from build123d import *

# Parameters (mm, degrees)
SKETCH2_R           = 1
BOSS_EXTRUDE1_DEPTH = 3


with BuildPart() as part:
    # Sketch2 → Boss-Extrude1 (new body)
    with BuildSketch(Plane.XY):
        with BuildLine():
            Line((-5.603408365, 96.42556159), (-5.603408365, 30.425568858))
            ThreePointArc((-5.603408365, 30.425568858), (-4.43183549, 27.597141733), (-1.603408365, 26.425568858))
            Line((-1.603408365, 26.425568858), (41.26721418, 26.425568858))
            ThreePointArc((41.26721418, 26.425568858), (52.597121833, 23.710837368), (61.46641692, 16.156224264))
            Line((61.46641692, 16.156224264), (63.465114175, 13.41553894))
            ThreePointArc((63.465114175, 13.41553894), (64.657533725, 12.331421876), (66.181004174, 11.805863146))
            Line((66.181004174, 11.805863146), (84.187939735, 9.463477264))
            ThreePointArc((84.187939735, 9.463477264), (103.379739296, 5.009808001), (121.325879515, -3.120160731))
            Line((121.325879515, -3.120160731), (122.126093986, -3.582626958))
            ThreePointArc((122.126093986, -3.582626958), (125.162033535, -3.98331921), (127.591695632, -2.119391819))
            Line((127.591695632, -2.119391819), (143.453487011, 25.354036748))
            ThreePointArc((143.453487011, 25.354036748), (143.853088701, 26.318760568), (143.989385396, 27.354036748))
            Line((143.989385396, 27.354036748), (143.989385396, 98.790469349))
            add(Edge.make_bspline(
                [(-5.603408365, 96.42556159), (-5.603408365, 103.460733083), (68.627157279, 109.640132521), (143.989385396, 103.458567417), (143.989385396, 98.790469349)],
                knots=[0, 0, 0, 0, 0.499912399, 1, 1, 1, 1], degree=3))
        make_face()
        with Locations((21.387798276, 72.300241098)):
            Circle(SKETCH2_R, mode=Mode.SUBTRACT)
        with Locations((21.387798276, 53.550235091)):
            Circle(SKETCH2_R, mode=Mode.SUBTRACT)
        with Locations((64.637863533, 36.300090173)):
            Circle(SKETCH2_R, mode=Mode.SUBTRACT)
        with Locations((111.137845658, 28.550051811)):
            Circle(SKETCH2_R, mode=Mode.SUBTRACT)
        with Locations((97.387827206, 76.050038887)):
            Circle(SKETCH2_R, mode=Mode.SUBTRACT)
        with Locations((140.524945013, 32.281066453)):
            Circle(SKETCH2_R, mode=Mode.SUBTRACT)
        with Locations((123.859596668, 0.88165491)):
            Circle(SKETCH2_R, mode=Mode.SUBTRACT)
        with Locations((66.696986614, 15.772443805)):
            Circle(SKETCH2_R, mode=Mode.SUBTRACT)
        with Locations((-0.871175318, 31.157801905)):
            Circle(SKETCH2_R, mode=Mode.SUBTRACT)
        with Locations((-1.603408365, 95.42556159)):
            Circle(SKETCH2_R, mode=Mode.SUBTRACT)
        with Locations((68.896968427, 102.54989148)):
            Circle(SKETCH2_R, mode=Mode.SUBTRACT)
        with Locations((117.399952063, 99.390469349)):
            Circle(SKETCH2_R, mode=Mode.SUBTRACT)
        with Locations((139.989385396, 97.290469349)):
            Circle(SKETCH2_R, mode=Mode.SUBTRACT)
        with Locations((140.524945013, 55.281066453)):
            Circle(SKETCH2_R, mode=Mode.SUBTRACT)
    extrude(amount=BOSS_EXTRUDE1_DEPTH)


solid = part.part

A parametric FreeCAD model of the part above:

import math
import FreeCAD as App
import Part
import Sketcher

V = App.Vector

doc = App.newDocument("Part")
body = doc.addObject("PartDesign::Body", "Body")

# Sketch on XY plane
sketch1 = doc.addObject("Sketcher::SketchObject", "Sketch")
body.addObject(sketch1)
sketch1.AttachmentSupport = (doc.XY_Plane, [""])
sketch1.MapMode = "FlatFace"
sketch1.addGeometry(Part.LineSegment(V(-5.603408, 96.425562, 0), V(-5.603408, 30.425569, 0)), False)
sketch1.addGeometry(Part.ArcOfCircle(Part.Circle(V(-1.603408, 30.425569, 0), V(0, 0, 1), 4), math.radians(180), math.radians(270)), False)
sketch1.addGeometry(Part.LineSegment(V(-1.603408, 26.425569, 0), V(41.267214, 26.425569, 0)), False)
sketch1.addGeometry(Part.ArcOfCircle(Part.Circle(V(41.267214, 1.425569, 0), V(0, 0, 1), 25), math.radians(36.102117), math.radians(90)), False)
sketch1.addGeometry(Part.LineSegment(V(61.466417, 16.156224, 0), V(63.465114, 13.415539, 0)), False)
sketch1.addGeometry(Part.ArcOfCircle(Part.Circle(V(66.696987, 15.772444, 0), V(0, 0, 1), 4), math.radians(-143.897883), math.radians(-97.411556)), False)
sketch1.addGeometry(Part.LineSegment(V(66.181004, 11.805863, 0), V(84.18794, 9.463477, 0)), False)
sketch1.addGeometry(Part.ArcOfCircle(Part.Circle(V(71.288379, -89.701039, 0), V(0, 0, 1), 100), math.radians(59.975187), math.radians(82.588444)), False)
sketch1.addGeometry(Part.LineSegment(V(121.32588, -3.120161, 0), V(122.126094, -3.582627, 0)), False)
sketch1.addGeometry(Part.ArcOfCircle(Part.Circle(V(124.127594, -0.119392, 0), V(0, 0, 1), 4), math.radians(-120.024813), math.radians(-30)), False)
sketch1.addGeometry(Part.LineSegment(V(127.591696, -2.119392, 0), V(143.453487, 25.354037, 0)), False)
sketch1.addGeometry(Part.ArcOfCircle(Part.Circle(V(139.989385, 27.354037, 0), V(0, 0, 1), 4), math.radians(-30), math.radians(0)), False)
sketch1.addGeometry(Part.LineSegment(V(143.989385, 27.354037, 0), V(143.989385, 98.790469, 0)), False)
sketch1.addGeometry(Part.BSplineCurve([V(-5.603408, 96.425562, 0), V(-5.603408, 103.460733, 0), V(68.627157, 109.640133, 0), V(143.989385, 103.458567, 0), V(143.989385, 98.790469, 0)], [4, 1, 4], [0, 0.499912399, 1], False, 3, [1, 1, 1, 1, 1], False), False)
sketch1.addGeometry(Part.Circle(V(66.696987, 15.772444, 0), V(0, 0, 1), 1), False)
sketch1.addGeometry(Part.Circle(V(-0.871175, 31.157802, 0), V(0, 0, 1), 1), False)
sketch1.addGeometry(Part.Circle(V(64.637864, 36.30009, 0), V(0, 0, 1), 1), False)
sketch1.addGeometry(Part.Circle(V(123.859597, 0.881655, 0), V(0, 0, 1), 1), False)
sketch1.addGeometry(Part.Circle(V(111.137846, 28.550052, 0), V(0, 0, 1), 1), False)
sketch1.addGeometry(Part.Circle(V(140.524945, 32.281066, 0), V(0, 0, 1), 1), False)
sketch1.addGeometry(Part.Circle(V(21.387798, 53.550235, 0), V(0, 0, 1), 1), False)
sketch1.addGeometry(Part.Circle(V(21.387798, 72.300241, 0), V(0, 0, 1), 1), False)
sketch1.addGeometry(Part.Circle(V(-1.603408, 95.425562, 0), V(0, 0, 1), 1), False)
sketch1.addGeometry(Part.Circle(V(68.896968, 102.549891, 0), V(0, 0, 1), 1), False)
sketch1.addGeometry(Part.Circle(V(97.387827, 76.050039, 0), V(0, 0, 1), 1), False)
sketch1.addGeometry(Part.Circle(V(140.524945, 55.281066, 0), V(0, 0, 1), 1), False)
sketch1.addGeometry(Part.Circle(V(117.399952, 99.390469, 0), V(0, 0, 1), 1), False)
sketch1.addGeometry(Part.Circle(V(139.989385, 97.290469, 0), V(0, 0, 1), 1), False)
sketch1.addConstraint(Sketcher.Constraint("Block", 13))
sketch1.addConstraint(Sketcher.Constraint("Coincident", 0, 2, 1, 1))
sketch1.addConstraint(Sketcher.Constraint("Coincident", 1, 2, 2, 1))
sketch1.addConstraint(Sketcher.Constraint("Coincident", 2, 2, 3, 2))
sketch1.addConstraint(Sketcher.Constraint("Coincident", 3, 1, 4, 1))
sketch1.addConstraint(Sketcher.Constraint("Coincident", 4, 2, 5, 1))
sketch1.addConstraint(Sketcher.Constraint("Coincident", 5, 2, 6, 1))
sketch1.addConstraint(Sketcher.Constraint("Coincident", 6, 2, 7, 2))
sketch1.addConstraint(Sketcher.Constraint("Coincident", 7, 1, 8, 1))
sketch1.addConstraint(Sketcher.Constraint("Coincident", 8, 2, 9, 1))
sketch1.addConstraint(Sketcher.Constraint("Coincident", 9, 2, 10, 1))
sketch1.addConstraint(Sketcher.Constraint("Coincident", 10, 2, 11, 1))
sketch1.addConstraint(Sketcher.Constraint("Coincident", 11, 2, 12, 1))
sketch1.addConstraint(Sketcher.Constraint("Coincident", 12, 2, 13, 2))
sketch1.addConstraint(Sketcher.Constraint("Coincident", 13, 1, 0, 1))
sketch1.addConstraint(Sketcher.Constraint("Vertical", 0))
sketch1.addConstraint(Sketcher.Constraint("Horizontal", 2))
sketch1.addConstraint(Sketcher.Constraint("Vertical", 12))
sketch1.addConstraint(Sketcher.Constraint("Coincident", 14, 3, 5, 3))
sketch1.addConstraint(Sketcher.Constraint("Diameter", 14, 2.0))
sketch1.addConstraint(Sketcher.Constraint("Diameter", 15, 2.0))
sketch1.addConstraint(Sketcher.Constraint("Diameter", 16, 2.0))
sketch1.addConstraint(Sketcher.Constraint("Diameter", 17, 2.0))
sketch1.addConstraint(Sketcher.Constraint("Diameter", 18, 2.0))
sketch1.addConstraint(Sketcher.Constraint("Diameter", 19, 2.0))
sketch1.addConstraint(Sketcher.Constraint("Diameter", 20, 2.0))
sketch1.addConstraint(Sketcher.Constraint("Diameter", 21, 2.0))
sketch1.addConstraint(Sketcher.Constraint("Diameter", 22, 2.0))
sketch1.addConstraint(Sketcher.Constraint("Diameter", 23, 2.0))
sketch1.addConstraint(Sketcher.Constraint("Diameter", 24, 2.0))
sketch1.addConstraint(Sketcher.Constraint("Diameter", 25, 2.0))
sketch1.addConstraint(Sketcher.Constraint("Diameter", 26, 2.0))
sketch1.addConstraint(Sketcher.Constraint("Diameter", 27, 2.0))
sketch1.addConstraint(Sketcher.Constraint("Radius", 1, 4.0))
sketch1.addConstraint(Sketcher.Constraint("Radius", 3, 25.0))
sketch1.addConstraint(Sketcher.Constraint("Radius", 5, 4.0))
sketch1.addConstraint(Sketcher.Constraint("Radius", 7, 100.0))
sketch1.addConstraint(Sketcher.Constraint("Radius", 9, 4.0))
sketch1.addConstraint(Sketcher.Constraint("Radius", 11, 4.0))
sketch1.addConstraint(Sketcher.Constraint("DistanceY", 19, 3, 25, 3, 23.0))
sketch1.addConstraint(Sketcher.Constraint("DistanceY", 3, 3, 0, 2, 29.0))
sketch1.addConstraint(Sketcher.Constraint("DistanceX", 0, 2, 1, 2, 4.0))
sketch1.addConstraint(Sketcher.Constraint("DistanceY", 9, 2, 9, 3, 2.0))
sketch1.addConstraint(Sketcher.Constraint("DistanceY", 10, 2, 11, 3, 2.0))
sketch1.addConstraint(Sketcher.Constraint("DistanceY", 10, 2, 11, 2, 2.0))
sketch1.addConstraint(Sketcher.Constraint("DistanceX", 27, 3, 12, 2, 4.0))
sketch1.addConstraint(Sketcher.Constraint("DistanceY", 27, 3, 26, 3, 2.1))
sketch1.addConstraint(Sketcher.Constraint("DistanceY", 27, 3, 12, 2, 1.5))
sketch1.addConstraint(Sketcher.Constraint("DistanceY", -1, 1, 15, 3, 31.157802))
sketch1.addConstraint(Sketcher.Constraint("DistanceX", -1, 1, 20, 3, 21.387798))
sketch1.addConstraint(Sketcher.Constraint("DistanceX", -1, 1, 21, 3, 21.387798))
sketch1.addConstraint(Sketcher.Constraint("DistanceX", 5, 3, 11, 3, 73.292399))
sketch1.addConstraint(Sketcher.Constraint("DistanceX", 18, 3, 19, 3, 29.387099))
sketch1.addConstraint(Sketcher.Constraint("DistanceY", 16, 3, 23, 3, 66.249801))
sketch1.addConstraint(Sketcher.Constraint("DistanceX", 18, 3, 25, 3, 29.387099))
sketch1.addConstraint(Sketcher.Constraint("DistanceX", 3, 3, 4, 2, 22.1979))
sketch1.addConstraint(Sketcher.Constraint("DistanceX", 8, 2, 9, 3, 2.0015))
sketch1.addConstraint(Sketcher.Constraint("DistanceX", 17, 3, 9, 2, 3.732099))
sketch1.addConstraint(Sketcher.Constraint("Distance", 4, 3.392071))
sketch1.addConstraint(Sketcher.Constraint("Distance", 6, 18.158648))
sketch1.addConstraint(Sketcher.Constraint("Distance", 8, 0.924239))
sketch1.addConstraint(Sketcher.Constraint("DistanceX", 2, 1, 2, 2, 42.870623))
sketch1.addConstraint(Sketcher.Constraint("DistanceY", 0, 2, 0, 1, 65.999993))
sketch1.addConstraint(Sketcher.Constraint("DistanceY", 12, 1, 12, 2, 71.436433))
sketch1.addConstraint(Sketcher.Constraint("DistanceX", -1, 1, 7, 3, 71.288379))
sketch1.addConstraint(Sketcher.Constraint("DistanceY", 7, 3, -1, 1, 89.701039))
sketch1.addConstraint(Sketcher.Constraint("DistanceY", 9, 3, -1, 1, 0.119392))
sketch1.addConstraint(Sketcher.Constraint("DistanceY", -1, 1, 16, 3, 36.30009))
sketch1.addConstraint(Sketcher.Constraint("DistanceY", -1, 1, 18, 3, 28.550052))
sketch1.addConstraint(Sketcher.Constraint("DistanceY", -1, 1, 21, 3, 72.300241))
sketch1.addConstraint(Sketcher.Constraint("DistanceX", 22, 3, -1, 1, 1.603408))
sketch1.addConstraint(Sketcher.Constraint("DistanceY", -1, 1, 22, 3, 95.425562))
sketch1.addConstraint(Sketcher.Constraint("DistanceX", -1, 1, 23, 3, 68.896968))
sketch1.addConstraint(Sketcher.Constraint("DistanceY", -1, 1, 24, 3, 76.050039))
sketch1.addConstraint(Sketcher.Constraint("DistanceY", -1, 1, 4, 2, 13.415539))
sketch1.addConstraint(Sketcher.Constraint("DistanceX", -1, 1, 6, 2, 84.18794))
sketch1.addConstraint(Sketcher.Constraint("DistanceX", -1, 1, 7, 1, 121.32588))
sketch1.addConstraint(Sketcher.Constraint("DistanceX", 3, 3, 9, 3, 82.86038))
sketch1.addConstraint(Sketcher.Constraint("DistanceX", 15, 3, 3, 3, 42.138389))
sketch1.addConstraint(Sketcher.Constraint("DistanceX", 3, 3, 16, 3, 23.370649))
sketch1.addConstraint(Sketcher.Constraint("DistanceY", 17, 3, 11, 3, 26.472382))
sketch1.addConstraint(Sketcher.Constraint("DistanceX", 18, 3, 11, 3, 28.85154))
sketch1.addConstraint(Sketcher.Constraint("DistanceY", 11, 3, 19, 3, 4.92703))
sketch1.addConstraint(Sketcher.Constraint("DistanceY", 5, 3, 20, 3, 37.777791))
sketch1.addConstraint(Sketcher.Constraint("DistanceX", 23, 3, 24, 3, 28.490859))
sketch1.addConstraint(Sketcher.Constraint("DistanceX", -1, 1, 26, 3, 117.399952))
pad1 = doc.addObject("PartDesign::Pad", "Pad")
body.addObject(pad1)
pad1.Profile = sketch1
pad1.Length = 3

doc.recompute()
